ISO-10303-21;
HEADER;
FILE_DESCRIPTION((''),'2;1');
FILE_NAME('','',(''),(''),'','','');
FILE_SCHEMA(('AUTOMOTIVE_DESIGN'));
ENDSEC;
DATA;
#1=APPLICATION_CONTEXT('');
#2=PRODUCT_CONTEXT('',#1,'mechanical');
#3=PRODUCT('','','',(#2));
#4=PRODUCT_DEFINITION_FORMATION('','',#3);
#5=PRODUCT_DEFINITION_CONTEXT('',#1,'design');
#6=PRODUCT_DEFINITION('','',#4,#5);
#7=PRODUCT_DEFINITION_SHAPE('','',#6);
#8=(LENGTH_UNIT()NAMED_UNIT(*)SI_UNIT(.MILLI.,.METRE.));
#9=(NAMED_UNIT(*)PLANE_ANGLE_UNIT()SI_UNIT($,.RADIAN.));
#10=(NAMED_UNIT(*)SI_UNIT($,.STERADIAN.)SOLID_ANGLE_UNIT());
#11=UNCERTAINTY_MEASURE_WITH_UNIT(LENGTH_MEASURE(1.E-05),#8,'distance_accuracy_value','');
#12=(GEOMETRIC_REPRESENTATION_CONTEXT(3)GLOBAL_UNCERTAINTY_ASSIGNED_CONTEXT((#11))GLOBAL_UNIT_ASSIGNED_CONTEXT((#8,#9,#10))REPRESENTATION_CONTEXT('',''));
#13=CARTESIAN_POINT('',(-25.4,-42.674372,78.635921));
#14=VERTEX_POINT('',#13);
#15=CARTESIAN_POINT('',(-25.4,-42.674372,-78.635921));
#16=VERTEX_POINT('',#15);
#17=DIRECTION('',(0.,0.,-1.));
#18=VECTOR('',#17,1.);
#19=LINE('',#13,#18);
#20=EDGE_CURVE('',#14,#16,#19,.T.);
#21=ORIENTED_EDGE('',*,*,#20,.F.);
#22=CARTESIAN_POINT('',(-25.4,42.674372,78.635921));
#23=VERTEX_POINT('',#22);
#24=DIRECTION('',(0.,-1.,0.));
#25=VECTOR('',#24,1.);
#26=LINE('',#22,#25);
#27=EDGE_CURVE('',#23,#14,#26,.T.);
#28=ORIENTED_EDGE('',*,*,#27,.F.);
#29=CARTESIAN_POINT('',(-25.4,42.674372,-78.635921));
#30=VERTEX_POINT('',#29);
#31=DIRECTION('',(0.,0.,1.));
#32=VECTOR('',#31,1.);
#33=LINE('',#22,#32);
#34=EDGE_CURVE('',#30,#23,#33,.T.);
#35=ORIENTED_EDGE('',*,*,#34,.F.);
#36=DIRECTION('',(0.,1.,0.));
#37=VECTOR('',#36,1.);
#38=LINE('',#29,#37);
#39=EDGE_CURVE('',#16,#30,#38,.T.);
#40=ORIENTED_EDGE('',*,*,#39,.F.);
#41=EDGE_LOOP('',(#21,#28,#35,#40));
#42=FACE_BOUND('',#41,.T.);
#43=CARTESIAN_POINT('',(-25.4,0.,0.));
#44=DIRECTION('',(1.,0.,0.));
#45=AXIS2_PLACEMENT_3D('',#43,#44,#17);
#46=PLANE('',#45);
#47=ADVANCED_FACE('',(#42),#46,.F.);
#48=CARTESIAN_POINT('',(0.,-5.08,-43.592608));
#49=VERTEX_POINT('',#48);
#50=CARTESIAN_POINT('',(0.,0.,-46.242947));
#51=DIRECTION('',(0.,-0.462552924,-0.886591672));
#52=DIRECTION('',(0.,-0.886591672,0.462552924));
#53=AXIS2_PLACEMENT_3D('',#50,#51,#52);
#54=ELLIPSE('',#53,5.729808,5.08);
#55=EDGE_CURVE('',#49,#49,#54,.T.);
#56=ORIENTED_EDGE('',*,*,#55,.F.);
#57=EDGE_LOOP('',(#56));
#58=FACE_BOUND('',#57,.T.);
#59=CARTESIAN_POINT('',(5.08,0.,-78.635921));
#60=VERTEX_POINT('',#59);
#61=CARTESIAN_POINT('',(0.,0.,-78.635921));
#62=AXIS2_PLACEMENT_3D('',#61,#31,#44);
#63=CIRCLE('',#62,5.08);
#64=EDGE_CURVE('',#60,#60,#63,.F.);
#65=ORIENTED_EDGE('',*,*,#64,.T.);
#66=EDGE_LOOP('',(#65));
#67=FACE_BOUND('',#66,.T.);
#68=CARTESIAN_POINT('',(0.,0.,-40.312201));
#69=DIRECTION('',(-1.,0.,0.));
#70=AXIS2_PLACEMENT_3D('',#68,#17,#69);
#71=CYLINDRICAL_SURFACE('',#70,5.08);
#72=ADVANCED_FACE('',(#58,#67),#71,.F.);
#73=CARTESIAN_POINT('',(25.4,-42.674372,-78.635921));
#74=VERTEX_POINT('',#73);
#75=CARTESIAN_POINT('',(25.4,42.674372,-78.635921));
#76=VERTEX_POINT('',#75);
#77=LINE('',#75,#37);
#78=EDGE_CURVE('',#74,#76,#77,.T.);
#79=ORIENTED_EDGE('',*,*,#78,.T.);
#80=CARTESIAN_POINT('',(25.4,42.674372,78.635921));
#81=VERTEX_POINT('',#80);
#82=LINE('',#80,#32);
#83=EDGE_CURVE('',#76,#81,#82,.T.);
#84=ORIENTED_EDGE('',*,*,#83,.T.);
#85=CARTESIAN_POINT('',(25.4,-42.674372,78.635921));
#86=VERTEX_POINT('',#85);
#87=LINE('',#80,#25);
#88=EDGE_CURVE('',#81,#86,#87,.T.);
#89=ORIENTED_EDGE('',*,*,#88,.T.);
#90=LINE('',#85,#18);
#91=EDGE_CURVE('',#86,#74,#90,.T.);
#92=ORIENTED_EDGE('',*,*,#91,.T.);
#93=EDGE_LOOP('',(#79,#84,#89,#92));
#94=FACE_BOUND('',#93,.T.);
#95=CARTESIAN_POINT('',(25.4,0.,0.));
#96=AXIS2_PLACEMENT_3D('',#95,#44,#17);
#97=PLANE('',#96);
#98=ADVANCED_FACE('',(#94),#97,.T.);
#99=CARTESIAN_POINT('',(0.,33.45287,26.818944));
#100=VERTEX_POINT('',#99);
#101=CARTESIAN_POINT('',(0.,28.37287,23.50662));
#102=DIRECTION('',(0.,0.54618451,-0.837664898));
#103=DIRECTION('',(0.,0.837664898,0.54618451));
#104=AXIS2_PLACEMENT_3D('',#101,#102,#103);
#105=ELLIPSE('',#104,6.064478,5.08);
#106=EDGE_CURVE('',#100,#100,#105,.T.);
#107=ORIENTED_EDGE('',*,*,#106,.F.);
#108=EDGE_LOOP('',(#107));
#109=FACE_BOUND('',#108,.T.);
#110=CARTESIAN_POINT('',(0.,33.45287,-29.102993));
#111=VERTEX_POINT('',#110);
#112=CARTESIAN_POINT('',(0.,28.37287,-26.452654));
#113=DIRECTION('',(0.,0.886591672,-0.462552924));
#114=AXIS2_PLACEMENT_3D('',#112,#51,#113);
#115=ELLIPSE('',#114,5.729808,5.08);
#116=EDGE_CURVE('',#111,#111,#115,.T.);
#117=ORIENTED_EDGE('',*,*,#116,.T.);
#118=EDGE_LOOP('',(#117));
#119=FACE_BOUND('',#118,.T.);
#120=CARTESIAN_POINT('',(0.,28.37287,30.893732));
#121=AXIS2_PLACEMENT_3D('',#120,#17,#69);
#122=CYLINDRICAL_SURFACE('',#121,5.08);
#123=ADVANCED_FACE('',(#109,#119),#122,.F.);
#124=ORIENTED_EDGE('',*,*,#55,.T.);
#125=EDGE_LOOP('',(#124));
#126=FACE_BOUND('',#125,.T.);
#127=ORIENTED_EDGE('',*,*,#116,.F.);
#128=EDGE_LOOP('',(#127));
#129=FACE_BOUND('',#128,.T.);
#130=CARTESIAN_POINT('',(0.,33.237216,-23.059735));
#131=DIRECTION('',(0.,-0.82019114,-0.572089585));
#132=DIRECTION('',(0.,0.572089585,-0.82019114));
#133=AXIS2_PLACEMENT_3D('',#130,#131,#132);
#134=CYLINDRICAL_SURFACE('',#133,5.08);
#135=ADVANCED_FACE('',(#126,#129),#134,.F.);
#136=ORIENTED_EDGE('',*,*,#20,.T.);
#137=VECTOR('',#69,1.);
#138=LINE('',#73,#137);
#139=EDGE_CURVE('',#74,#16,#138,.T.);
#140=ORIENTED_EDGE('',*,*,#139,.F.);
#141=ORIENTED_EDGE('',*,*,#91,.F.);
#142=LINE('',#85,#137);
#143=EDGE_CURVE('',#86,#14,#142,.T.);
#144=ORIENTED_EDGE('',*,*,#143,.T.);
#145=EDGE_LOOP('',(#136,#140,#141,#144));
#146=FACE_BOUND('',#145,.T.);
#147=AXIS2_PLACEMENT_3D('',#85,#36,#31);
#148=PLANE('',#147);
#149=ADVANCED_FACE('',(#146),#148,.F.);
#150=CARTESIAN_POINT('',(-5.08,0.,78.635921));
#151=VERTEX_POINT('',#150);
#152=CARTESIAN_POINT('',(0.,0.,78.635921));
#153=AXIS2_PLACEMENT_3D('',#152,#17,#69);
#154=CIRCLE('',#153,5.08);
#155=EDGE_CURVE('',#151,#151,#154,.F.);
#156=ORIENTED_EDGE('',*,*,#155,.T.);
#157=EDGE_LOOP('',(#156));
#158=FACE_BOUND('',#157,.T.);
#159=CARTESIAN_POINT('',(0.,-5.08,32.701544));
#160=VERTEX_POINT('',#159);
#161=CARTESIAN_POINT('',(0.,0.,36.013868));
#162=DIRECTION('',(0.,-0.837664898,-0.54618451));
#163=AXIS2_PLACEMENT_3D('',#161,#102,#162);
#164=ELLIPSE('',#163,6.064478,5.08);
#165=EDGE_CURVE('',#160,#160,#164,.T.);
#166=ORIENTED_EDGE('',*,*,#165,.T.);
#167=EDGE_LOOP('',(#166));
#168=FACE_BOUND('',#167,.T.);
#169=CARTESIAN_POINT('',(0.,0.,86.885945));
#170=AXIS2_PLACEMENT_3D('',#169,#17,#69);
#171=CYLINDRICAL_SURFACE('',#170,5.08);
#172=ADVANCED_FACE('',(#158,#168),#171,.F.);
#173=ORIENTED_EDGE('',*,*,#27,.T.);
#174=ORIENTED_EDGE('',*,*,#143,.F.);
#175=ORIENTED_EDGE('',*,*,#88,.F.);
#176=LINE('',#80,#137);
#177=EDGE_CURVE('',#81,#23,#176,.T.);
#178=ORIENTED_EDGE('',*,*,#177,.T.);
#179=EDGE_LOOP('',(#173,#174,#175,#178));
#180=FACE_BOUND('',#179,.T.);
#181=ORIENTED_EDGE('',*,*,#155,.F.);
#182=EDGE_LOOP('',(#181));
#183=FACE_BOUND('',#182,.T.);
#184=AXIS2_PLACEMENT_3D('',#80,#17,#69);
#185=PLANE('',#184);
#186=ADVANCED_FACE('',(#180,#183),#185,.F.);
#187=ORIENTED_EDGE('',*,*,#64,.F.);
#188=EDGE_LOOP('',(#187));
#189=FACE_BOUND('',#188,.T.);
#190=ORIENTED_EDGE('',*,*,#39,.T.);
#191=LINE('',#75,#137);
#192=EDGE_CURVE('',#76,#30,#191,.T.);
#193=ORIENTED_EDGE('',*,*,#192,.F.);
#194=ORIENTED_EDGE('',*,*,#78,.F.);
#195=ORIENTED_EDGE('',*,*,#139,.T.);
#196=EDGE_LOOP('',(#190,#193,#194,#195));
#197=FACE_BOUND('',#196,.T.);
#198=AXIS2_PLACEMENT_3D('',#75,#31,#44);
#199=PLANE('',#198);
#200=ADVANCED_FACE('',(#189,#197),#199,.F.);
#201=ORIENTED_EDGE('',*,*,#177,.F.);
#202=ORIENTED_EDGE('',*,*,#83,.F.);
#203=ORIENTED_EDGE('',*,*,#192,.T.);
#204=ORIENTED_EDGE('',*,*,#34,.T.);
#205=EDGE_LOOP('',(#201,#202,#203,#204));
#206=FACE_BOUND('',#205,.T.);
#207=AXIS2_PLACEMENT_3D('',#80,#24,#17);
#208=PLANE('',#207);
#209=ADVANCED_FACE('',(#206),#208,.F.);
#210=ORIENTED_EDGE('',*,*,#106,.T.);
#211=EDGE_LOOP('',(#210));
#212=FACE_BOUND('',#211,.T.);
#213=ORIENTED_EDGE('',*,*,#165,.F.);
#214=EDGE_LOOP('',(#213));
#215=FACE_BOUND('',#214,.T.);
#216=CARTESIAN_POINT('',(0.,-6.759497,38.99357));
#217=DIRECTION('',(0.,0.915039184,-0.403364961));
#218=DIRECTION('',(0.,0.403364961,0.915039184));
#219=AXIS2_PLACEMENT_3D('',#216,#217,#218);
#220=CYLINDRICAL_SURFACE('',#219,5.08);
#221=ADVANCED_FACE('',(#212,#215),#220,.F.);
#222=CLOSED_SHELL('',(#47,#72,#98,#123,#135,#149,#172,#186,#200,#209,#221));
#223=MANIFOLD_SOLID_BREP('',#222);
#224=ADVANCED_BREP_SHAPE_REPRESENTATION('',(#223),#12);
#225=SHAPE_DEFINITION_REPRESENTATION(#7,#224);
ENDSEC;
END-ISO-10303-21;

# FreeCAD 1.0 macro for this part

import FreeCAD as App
import Part
import Sketcher
from FreeCAD import Vector
Q = App.Units.Quantity

doc = App.newDocument("Part")
params = doc.addObject("Spreadsheet::Sheet", "Params")
for row, (alias, value) in enumerate([
    ("pad1_length", "2 in"),
    ("sketch2_diameter", "0.4 in"),
], start=1):
    params.set(f"A{row}", alias)
    params.set(f"B{row}", "=" + value)
    params.setAlias(f"B{row}", alias)

body = doc.addObject("PartDesign::Body", "Body")

sketch1 = body.newObject("Sketcher::SketchObject", "Sketch")
sketch1.AttachmentSupport = (doc.getObject("YZ_Plane"), [""])
sketch1.MapMode = "FlatFace"
sketch1.addGeometry([
    Part.LineSegment(Vector(43, 79, 0), Vector(-43, 79, 0)),
    Part.LineSegment(Vector(-43, 79, 0), Vector(-43, -79, 0)),
    Part.LineSegment(Vector(-43, -79, 0), Vector(43, -79, 0)),
    Part.LineSegment(Vector(43, -79, 0), Vector(43, 79, 0)),
], False)
sketch1.addConstraint([
    Sketcher.Constraint("Coincident", 0, 2, 1, 1),
    Sketcher.Constraint("Coincident", 1, 2, 2, 1),
    Sketcher.Constraint("Coincident", 2, 2, 3, 1),
    Sketcher.Constraint("Coincident", 3, 2, 0, 1),
    Sketcher.Constraint("Horizontal", 0),
    Sketcher.Constraint("Vertical", 1),
    Sketcher.Constraint("Horizontal", 2),
    Sketcher.Constraint("Vertical", 3),
    Sketcher.Constraint("Symmetric", 0, 2, 2, 2, -1, 1),
    Sketcher.Constraint("DistanceY", 1, 2, 1, 1, Q("157.271842 mm")),
    Sketcher.Constraint("DistanceX", 0, 2, 0, 1, Q("85.348743 mm")),
])
pad1 = body.newObject("PartDesign::Pad", "Pad")
pad1.Profile = sketch1
pad1.setExpression("Length", "Params.pad1_length")
pad1.Midplane = True

sketch2 = body.newObject("Sketcher::SketchObject", "Sketch001")
sketch2.AttachmentSupport = (doc.getObject("XY_Plane"), [""])
sketch2.MapMode = "FlatFace"
sketch2.AttachmentOffset = App.Placement(Vector(0, 0, 86.885945), App.Rotation())
sketch2.addGeometry(Part.Circle(Vector(0, 0, 0), Vector(0, 0, 1), 5), False)
sketch2.addConstraint([
    Sketcher.Constraint("Coincident", 0, 3, -1, 1),
    Sketcher.Constraint("Diameter", 0, Q("0.4 in")),
])
sketch2.setExpression("Constraints[1]", "Params.sketch2_diameter")

sketch3 = body.newObject("Sketcher::SketchObject", "Sketch002")
sketch3.AttachmentSupport = (doc.getObject("YZ_Plane"), [""])
sketch3.MapMode = "FlatFace"
sketch3.addGeometry([
    Part.LineSegment(Vector(0, 87, 0), Vector(0, 36, 0)),
    Part.LineSegment(Vector(0, 36, 0), Vector(28, 24, 0)),
    Part.LineSegment(Vector(28, 24, 0), Vector(28, -26, 0)),
    Part.LineSegment(Vector(28, -26, 0), Vector(0, -46, 0)),
    Part.LineSegment(Vector(0, -46, 0), Vector(0, -79, 0)),
], False)
sketch3.addConstraint([
    Sketcher.Constraint("Coincident", 0, 2, 1, 1),
    Sketcher.Constraint("Coincident", 1, 2, 2, 1),
    Sketcher.Constraint("Coincident", 2, 2, 3, 1),
    Sketcher.Constraint("Coincident", 3, 2, 4, 1),
    Sketcher.Constraint("Vertical", 0),
    Sketcher.Constraint("Vertical", 2),
    Sketcher.Constraint("Vertical", 4),
    Sketcher.Constraint("PointOnObject", 0, 1, -2),
    Sketcher.Constraint("PointOnObject", 3, 2, -2),
    Sketcher.Constraint("DistanceY", 4, 2, 4, 1, Q("32.626951 mm")),
    Sketcher.Constraint("DistanceY", 4, 2, -1, 1, Q("78.869899 mm")),
    Sketcher.Constraint("DistanceY", 2, 2, 0, 1, Q("113.338598 mm")),
    Sketcher.Constraint("DistanceY", 0, 2, 0, 1, Q("50.872077 mm")),
    Sketcher.Constraint("DistanceY", 2, 2, 2, 1, Q("49.959274 mm")),
    Sketcher.Constraint("DistanceX", -1, 1, 1, 2, Q("28.37287 mm")),
    Sketcher.Constraint("DistanceY", -1, 1, 1, 2, Q("23.50662 mm")),
])
doc.recompute()

subtractivepipe = body.newObject("PartDesign::SubtractivePipe", "SubtractivePipe")
subtractivepipe.Profile = sketch2
subtractivepipe.Spine = (sketch3, ["Edge1", "Edge2", "Edge3", "Edge4", "Edge5"])
subtractivepipe.Transition = "Right corner"

doc.recompute()
